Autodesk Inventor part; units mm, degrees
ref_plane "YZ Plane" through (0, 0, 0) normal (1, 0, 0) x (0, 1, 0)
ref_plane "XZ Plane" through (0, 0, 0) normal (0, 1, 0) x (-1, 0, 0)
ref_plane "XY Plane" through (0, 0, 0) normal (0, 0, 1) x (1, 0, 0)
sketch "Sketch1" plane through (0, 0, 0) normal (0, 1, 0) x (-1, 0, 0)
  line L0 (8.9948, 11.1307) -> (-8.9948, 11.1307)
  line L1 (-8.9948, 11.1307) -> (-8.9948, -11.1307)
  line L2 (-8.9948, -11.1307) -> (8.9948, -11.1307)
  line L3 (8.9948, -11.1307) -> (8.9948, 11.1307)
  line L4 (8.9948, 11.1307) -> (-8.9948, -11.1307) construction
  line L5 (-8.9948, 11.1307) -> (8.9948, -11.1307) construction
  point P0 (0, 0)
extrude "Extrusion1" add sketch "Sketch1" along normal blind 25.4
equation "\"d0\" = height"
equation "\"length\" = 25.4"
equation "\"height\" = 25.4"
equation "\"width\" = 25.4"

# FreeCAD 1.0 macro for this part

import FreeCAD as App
import Part
import Sketcher

V = App.Vector
Q = App.Units.Quantity

doc = App.newDocument("Part")
body = doc.addObject("PartDesign::Body", "Body")

# Sketch on XZ plane
sketch1 = doc.addObject("Sketcher::SketchObject", "Sketch")
body.addObject(sketch1)
sketch1.AttachmentSupport = (doc.XZ_Plane, [""])
sketch1.MapMode = "FlatFace"
sketch1.addGeometry([
    Part.LineSegment(V(-9, -11, 0), V(-9, 11, 0)),
    Part.LineSegment(V(-9, 11, 0), V(9, 11, 0)),
    Part.LineSegment(V(9, 11, 0), V(9, -11, 0)),
    Part.LineSegment(V(9, -11, 0), V(-9, -11, 0)),
], False)
sketch1.addConstraint([
    Sketcher.Constraint("Coincident", 0, 2, 1, 1),
    Sketcher.Constraint("Coincident", 1, 2, 2, 1),
    Sketcher.Constraint("Coincident", 2, 2, 3, 1),
    Sketcher.Constraint("Coincident", 3, 2, 0, 1),
    Sketcher.Constraint("Vertical", 0),
    Sketcher.Constraint("Horizontal", 1),
    Sketcher.Constraint("Vertical", 2),
    Sketcher.Constraint("Horizontal", 3),
    Sketcher.Constraint("Symmetric", 0, 2, 2, 2, -1, 1),
    Sketcher.Constraint("DistanceX", 1, 1, 1, 2, Q("17.9896 mm")),
    Sketcher.Constraint("DistanceY", 0, 1, 0, 2, Q("22.2614 mm")),
])
pad1 = doc.addObject("PartDesign::Pad", "Pad")
body.addObject(pad1)
pad1.Profile = sketch1
pad1.Length = Q("1 in")
pad1.Reversed = True

doc.recompute()
